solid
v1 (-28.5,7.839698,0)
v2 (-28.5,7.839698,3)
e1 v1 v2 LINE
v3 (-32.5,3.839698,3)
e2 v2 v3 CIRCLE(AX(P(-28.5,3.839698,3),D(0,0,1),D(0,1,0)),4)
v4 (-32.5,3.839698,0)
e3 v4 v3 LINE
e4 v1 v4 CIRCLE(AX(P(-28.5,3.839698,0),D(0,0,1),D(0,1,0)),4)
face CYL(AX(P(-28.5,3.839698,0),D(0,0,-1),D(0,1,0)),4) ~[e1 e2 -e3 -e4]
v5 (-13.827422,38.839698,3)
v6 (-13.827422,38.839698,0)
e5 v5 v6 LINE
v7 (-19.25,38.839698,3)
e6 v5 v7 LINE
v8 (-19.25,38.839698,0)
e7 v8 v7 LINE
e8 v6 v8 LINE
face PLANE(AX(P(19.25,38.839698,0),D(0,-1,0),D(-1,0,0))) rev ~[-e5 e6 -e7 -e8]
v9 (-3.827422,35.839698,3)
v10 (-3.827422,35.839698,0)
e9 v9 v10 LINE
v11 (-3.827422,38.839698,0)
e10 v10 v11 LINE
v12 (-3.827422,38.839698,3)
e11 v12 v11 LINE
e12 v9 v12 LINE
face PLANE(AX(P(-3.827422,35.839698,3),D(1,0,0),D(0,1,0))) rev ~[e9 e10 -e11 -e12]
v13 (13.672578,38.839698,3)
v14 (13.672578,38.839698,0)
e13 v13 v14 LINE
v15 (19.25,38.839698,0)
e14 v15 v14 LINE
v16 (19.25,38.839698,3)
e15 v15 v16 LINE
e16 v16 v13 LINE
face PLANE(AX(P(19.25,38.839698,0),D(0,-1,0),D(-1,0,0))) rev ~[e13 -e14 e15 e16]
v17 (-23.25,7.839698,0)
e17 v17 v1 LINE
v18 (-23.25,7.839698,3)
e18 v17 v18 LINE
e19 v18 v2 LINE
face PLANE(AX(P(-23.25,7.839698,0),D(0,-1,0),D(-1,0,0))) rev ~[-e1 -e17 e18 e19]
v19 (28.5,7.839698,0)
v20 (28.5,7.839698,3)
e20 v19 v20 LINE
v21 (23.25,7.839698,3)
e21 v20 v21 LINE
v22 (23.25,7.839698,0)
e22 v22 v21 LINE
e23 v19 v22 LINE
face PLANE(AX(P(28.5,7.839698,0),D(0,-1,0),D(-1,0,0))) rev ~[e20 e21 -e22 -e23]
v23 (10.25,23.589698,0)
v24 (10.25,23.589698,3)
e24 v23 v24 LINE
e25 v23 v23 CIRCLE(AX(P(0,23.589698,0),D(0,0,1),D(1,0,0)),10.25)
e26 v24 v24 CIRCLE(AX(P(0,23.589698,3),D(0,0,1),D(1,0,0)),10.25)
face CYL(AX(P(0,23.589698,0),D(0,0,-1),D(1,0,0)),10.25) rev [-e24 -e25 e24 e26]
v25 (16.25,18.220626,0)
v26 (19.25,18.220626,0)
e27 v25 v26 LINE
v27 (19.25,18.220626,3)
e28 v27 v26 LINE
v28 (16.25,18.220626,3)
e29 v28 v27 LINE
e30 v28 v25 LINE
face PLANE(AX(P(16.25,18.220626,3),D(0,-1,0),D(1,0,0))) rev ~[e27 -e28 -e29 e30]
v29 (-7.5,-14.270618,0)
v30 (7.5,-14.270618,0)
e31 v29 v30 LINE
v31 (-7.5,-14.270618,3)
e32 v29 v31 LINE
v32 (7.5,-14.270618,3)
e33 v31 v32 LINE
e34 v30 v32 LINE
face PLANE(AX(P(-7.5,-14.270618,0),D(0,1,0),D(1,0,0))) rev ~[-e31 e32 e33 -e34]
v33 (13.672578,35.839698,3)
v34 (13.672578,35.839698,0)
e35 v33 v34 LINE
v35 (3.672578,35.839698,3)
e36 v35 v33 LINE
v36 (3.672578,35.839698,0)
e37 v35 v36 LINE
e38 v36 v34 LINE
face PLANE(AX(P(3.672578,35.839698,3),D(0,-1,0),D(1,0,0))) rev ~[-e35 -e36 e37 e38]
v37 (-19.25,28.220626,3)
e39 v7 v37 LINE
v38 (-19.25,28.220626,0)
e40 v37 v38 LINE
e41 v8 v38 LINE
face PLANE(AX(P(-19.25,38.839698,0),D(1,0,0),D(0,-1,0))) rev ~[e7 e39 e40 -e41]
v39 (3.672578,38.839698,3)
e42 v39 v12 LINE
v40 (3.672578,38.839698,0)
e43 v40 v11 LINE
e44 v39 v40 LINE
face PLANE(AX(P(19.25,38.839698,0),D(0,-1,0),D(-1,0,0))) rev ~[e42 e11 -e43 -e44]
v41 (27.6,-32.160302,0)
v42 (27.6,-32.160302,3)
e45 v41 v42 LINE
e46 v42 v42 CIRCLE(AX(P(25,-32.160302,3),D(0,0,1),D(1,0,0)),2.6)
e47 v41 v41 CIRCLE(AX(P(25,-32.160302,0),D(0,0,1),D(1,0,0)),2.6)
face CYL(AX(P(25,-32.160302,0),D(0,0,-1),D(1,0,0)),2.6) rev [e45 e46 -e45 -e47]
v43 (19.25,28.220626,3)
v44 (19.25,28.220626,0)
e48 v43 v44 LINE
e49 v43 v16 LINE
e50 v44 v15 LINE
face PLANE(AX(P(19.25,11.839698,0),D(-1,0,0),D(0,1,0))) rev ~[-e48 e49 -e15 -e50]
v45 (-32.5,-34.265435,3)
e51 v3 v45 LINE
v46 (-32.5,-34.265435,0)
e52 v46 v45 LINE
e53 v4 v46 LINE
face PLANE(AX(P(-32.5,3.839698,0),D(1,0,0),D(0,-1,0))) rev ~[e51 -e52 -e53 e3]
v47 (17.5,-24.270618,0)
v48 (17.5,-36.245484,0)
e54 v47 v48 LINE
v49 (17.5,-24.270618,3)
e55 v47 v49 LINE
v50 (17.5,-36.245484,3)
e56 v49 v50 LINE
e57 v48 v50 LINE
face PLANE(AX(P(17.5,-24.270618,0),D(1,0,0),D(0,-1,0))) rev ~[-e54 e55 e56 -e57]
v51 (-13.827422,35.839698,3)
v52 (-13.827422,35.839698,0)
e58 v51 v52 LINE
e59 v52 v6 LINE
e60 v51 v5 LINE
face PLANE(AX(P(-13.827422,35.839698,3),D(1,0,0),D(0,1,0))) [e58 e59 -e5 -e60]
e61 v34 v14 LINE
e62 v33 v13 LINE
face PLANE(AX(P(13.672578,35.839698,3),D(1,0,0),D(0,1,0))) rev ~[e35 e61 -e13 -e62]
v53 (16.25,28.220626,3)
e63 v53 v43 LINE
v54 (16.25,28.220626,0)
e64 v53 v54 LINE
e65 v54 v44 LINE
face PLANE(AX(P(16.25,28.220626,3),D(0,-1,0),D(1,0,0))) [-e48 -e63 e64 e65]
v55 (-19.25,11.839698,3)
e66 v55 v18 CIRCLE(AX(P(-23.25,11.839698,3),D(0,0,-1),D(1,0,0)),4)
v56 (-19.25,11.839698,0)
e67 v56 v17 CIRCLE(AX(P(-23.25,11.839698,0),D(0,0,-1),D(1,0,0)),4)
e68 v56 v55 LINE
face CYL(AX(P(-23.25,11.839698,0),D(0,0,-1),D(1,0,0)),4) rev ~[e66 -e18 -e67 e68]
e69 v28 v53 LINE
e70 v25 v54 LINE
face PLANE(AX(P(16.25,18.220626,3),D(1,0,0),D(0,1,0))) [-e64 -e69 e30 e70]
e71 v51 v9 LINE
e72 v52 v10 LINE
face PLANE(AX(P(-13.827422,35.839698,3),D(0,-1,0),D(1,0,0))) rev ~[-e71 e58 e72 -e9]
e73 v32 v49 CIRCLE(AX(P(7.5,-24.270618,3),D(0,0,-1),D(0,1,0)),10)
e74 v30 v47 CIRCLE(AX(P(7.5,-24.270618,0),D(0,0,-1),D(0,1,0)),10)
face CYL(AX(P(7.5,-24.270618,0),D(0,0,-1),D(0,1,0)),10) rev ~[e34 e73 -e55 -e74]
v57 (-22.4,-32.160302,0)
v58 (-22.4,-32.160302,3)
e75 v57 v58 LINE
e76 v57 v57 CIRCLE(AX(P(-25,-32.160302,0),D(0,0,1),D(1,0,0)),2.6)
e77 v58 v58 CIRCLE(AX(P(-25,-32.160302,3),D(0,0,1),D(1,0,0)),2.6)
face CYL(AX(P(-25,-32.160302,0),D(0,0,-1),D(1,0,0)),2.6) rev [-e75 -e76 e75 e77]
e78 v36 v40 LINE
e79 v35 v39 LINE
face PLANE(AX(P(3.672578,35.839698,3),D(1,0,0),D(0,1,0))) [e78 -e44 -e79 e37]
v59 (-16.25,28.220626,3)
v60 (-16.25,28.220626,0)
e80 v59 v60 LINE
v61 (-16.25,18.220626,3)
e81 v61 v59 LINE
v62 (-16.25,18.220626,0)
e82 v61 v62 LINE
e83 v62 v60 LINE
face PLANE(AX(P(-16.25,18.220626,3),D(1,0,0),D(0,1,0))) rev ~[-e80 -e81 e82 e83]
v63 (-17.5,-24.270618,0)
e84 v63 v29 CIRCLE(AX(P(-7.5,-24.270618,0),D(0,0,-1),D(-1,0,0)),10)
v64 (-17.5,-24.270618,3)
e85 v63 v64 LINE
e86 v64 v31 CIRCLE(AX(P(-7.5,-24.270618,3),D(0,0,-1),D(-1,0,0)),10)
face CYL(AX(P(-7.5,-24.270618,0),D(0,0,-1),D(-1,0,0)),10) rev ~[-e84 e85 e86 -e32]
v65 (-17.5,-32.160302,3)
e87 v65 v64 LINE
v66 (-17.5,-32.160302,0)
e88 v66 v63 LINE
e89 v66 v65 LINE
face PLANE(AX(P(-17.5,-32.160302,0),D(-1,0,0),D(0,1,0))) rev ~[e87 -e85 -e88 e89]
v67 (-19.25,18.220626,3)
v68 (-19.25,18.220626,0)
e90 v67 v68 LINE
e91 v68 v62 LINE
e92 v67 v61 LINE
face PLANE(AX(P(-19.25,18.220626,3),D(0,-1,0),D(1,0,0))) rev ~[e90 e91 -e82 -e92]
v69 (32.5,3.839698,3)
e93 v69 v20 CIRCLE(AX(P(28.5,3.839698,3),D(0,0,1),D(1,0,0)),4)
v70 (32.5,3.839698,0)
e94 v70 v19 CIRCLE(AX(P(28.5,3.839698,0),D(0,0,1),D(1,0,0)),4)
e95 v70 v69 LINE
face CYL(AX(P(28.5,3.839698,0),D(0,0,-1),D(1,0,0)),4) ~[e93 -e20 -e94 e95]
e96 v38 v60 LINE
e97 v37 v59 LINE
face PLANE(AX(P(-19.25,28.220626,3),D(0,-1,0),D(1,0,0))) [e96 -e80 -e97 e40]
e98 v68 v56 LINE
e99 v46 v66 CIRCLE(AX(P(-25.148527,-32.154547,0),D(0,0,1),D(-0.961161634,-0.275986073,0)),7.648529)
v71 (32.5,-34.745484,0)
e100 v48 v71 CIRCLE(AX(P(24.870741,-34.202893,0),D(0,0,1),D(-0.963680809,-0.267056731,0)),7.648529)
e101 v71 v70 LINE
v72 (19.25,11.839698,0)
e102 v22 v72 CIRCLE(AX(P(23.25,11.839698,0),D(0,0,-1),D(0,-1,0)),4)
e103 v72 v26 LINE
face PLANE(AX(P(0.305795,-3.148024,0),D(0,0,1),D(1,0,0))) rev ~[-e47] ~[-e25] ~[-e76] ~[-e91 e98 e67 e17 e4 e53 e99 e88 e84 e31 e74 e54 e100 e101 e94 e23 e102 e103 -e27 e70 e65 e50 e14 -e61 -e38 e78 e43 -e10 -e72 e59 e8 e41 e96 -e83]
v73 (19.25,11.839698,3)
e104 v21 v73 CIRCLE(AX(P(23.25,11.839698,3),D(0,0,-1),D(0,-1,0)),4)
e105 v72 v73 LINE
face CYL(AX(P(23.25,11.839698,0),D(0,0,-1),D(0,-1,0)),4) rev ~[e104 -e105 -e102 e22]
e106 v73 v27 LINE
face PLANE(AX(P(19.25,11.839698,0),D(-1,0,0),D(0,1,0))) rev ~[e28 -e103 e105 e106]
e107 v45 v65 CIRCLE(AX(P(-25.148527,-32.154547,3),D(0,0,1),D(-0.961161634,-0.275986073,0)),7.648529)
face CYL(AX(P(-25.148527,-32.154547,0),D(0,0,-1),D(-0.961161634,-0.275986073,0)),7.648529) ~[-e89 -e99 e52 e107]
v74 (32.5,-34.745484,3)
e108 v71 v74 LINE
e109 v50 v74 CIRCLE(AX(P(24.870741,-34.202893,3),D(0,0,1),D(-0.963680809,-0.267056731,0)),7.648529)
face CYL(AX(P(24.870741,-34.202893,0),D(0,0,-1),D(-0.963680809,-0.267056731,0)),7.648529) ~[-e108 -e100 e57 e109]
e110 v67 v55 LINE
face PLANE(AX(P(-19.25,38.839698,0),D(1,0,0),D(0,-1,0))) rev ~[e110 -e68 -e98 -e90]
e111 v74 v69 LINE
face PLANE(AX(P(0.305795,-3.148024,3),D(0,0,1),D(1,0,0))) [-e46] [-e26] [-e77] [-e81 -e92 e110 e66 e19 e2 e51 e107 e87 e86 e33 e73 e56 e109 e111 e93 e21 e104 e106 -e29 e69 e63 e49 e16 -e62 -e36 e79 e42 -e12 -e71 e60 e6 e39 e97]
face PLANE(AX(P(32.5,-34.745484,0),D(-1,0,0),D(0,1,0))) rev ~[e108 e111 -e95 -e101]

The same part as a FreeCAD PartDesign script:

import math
import FreeCAD as App
import Part
import Sketcher

V = App.Vector

doc = App.newDocument("Part")
body = doc.addObject("PartDesign::Body", "Body")

sketch1 = body.newObject("Sketcher::SketchObject", "Sketch")
sketch1.AttachmentSupport = (doc.getObject("XY_Plane"), [""])
sketch1.MapMode = "FlatFace"
sketch1.addGeometry([
    Part.ArcOfCircle(Part.Circle(V(-25.1, -32.2, 0), V(0, 0, 1), 7.6), math.radians(-164), math.radians(0)),
    Part.LineSegment(V(-17.5, -32.2, 0), V(-17.5, -24.3, 0)),
    Part.ArcOfCircle(Part.Circle(V(-7.5, -24.3, 0), V(0, 0, 1), 10), math.radians(90), math.radians(180)),
    Part.LineSegment(V(-7.5, -14.3, 0), V(7.5, -14.3, 0)),
    Part.ArcOfCircle(Part.Circle(V(7.5, -24.3, 0), V(0, 0, 1), 10), math.radians(0), math.radians(90)),
    Part.LineSegment(V(17.5, -24.3, 0), V(17.5, -36.2, 0)),
    Part.ArcOfCircle(Part.Circle(V(24.9, -34.2, 0), V(0, 0, 1), 7.6), math.radians(-165), math.radians(-4)),
    Part.LineSegment(V(32.5, -34.7, 0), V(32.5, 3.8, 0)),
    Part.ArcOfCircle(Part.Circle(V(28.5, 3.8, 0), V(0, 0, 1), 4), math.radians(0), math.radians(90)),
    Part.LineSegment(V(28.5, 7.8, 0), V(23.2, 7.8, 0)),
    Part.ArcOfCircle(Part.Circle(V(23.2, 11.8, 0), V(0, 0, 1), 4), math.radians(180), math.radians(270)),
    Part.LineSegment(V(19.2, 11.8, 0), V(19.2, 38.8, 0)),
    Part.LineSegment(V(19.2, 38.8, 0), V(-19.2, 38.8, 0)),
    Part.LineSegment(V(-19.2, 38.8, 0), V(-19.2, 11.8, 0)),
    Part.ArcOfCircle(Part.Circle(V(-23.2, 11.8, 0), V(0, 0, 1), 4), math.radians(-90), math.radians(0)),
    Part.LineSegment(V(-23.2, 7.8, 0), V(-28.5, 7.8, 0)),
    Part.ArcOfCircle(Part.Circle(V(-28.5, 3.8, 0), V(0, 0, 1), 4), math.radians(90), math.radians(180)),
    Part.LineSegment(V(-32.5, 3.8, 0), V(-32.5, -34.3, 0)),
    Part.Circle(V(-25, -32.2, 0), V(0, 0, 1), 2.6),
    Part.Circle(V(25, -32.2, 0), V(0, 0, 1), 2.6),
    Part.Circle(V(0, 23.6, 0), V(0, 0, 1), 10.2),
], False)
sketch1.addConstraint([
    Sketcher.Constraint("Coincident", 0, 2, 1, 1),
    Sketcher.Constraint("Tangent", 1, 2, 2, 2),
    Sketcher.Constraint("Tangent", 2, 1, 3, 1),
    Sketcher.Constraint("Tangent", 3, 2, 4, 2),
    Sketcher.Constraint("Tangent", 4, 1, 5, 1),
    Sketcher.Constraint("Coincident", 5, 2, 6, 1),
    Sketcher.Constraint("Coincident", 6, 2, 7, 1),
    Sketcher.Constraint("Tangent", 7, 2, 8, 1),
    Sketcher.Constraint("Tangent", 8, 2, 9, 1),
    Sketcher.Constraint("Tangent", 9, 2, 10, 2),
    Sketcher.Constraint("Tangent", 10, 1, 11, 1),
    Sketcher.Constraint("Coincident", 11, 2, 12, 1),
    Sketcher.Constraint("Coincident", 12, 2, 13, 1),
    Sketcher.Constraint("Tangent", 13, 2, 14, 2),
    Sketcher.Constraint("Tangent", 14, 1, 15, 1),
    Sketcher.Constraint("Tangent", 15, 2, 16, 1),
    Sketcher.Constraint("Tangent", 16, 2, 17, 1),
    Sketcher.Constraint("Coincident", 17, 2, 0, 1),
    Sketcher.Constraint("Vertical", 1),
    Sketcher.Constraint("Horizontal", 3),
    Sketcher.Constraint("Vertical", 5),
    Sketcher.Constraint("Vertical", 7),
    Sketcher.Constraint("Horizontal", 9),
    Sketcher.Constraint("Vertical", 11),
    Sketcher.Constraint("Horizontal", 12),
    Sketcher.Constraint("Vertical", 13),
    Sketcher.Constraint("Horizontal", 15),
    Sketcher.Constraint("Vertical", 17),
    Sketcher.Constraint("Equal", 2, 4),
    Sketcher.Constraint("Equal", 0, 6),
    Sketcher.Constraint("Equal", 8, 10),
    Sketcher.Constraint("Equal", 10, 14),
    Sketcher.Constraint("Equal", 14, 16),
    Sketcher.Constraint("Equal", 18, 19),
    Sketcher.Constraint("Symmetric", 10, 3, 14, 3, -2),
    Sketcher.Constraint("Symmetric", 18, 3, 19, 3, -2),
    Sketcher.Constraint("PointOnObject", 20, 3, -2),
    Sketcher.Constraint("Horizontal", 19, 3, 0, 2),
    Sketcher.Constraint("Equal", 9, 15),
    Sketcher.Constraint("Radius", 2, 10.0),
    Sketcher.Constraint("Radius", 8, 4.0),
    Sketcher.Constraint("Diameter", 18, 5.2),
    Sketcher.Constraint("Diameter", 20, 20.5),
    Sketcher.Constraint("DistanceX", 3, 1, 3, 2, 15.0),
    Sketcher.Constraint("DistanceY", 11, 1, 11, 2, 27.0),
    Sketcher.Constraint("DistanceX", 12, 2, 12, 1, 38.5),
    Sketcher.Constraint("DistanceX", 18, 3, -1, 1, 25.0),
    Sketcher.Constraint("DistanceX", 4, 3, 8, 3, 21.0),
    Sketcher.Constraint("DistanceX", 16, 3, 2, 3, 21.0),
    Sketcher.Constraint("DistanceY", 18, 3, 16, 3, 36.0),
    Sketcher.Constraint("DistanceY", 5, 2, 6, 2, 1.5),
    Sketcher.Constraint("Radius", 0, 7.648529),
    Sketcher.Constraint("DistanceY", 10, 3, 20, 3, 11.75),
    Sketcher.Constraint("DistanceY", -1, 1, 8, 3, 3.839698),
    Sketcher.Constraint("DistanceY", 1, 1, 1, 2, 7.889684),
    Sketcher.Constraint("DistanceY", 5, 2, 5, 1, 11.974867),
    Sketcher.Constraint("DistanceY", 17, 2, 17, 1, 38.105133),
])
pad1 = body.newObject("PartDesign::Pad", "Pad")
pad1.Profile = sketch1
pad1.Length = 3

sketch2 = body.newObject("Sketcher::SketchObject", "Sketch001")
sketch2.AttachmentSupport = (doc.getObject("XY_Plane"), [""])
sketch2.MapMode = "FlatFace"
sketch2.AttachmentOffset = App.Placement(V(0, 0, 3), App.Rotation())
sketch2.addGeometry([
    Part.LineSegment(V(-19.2, 28.2, 0), V(-19.2, 18.2, 0)),
    Part.LineSegment(V(-19.2, 18.2, 0), V(-16.2, 18.2, 0)),
    Part.LineSegment(V(-16.2, 18.2, 0), V(-16.2, 28.2, 0)),
    Part.LineSegment(V(-16.2, 28.2, 0), V(-19.2, 28.2, 0)),
    Part.LineSegment(V(-13.8, 38.8, 0), V(-13.8, 35.8, 0)),
    Part.LineSegment(V(-13.8, 35.8, 0), V(-3.8, 35.8, 0)),
    Part.LineSegment(V(-3.8, 35.8, 0), V(-3.8, 38.8, 0)),
    Part.LineSegment(V(-3.8, 38.8, 0), V(-13.8, 38.8, 0)),
    Part.LineSegment(V(3.7, 38.8, 0), V(3.7, 35.8, 0)),
    Part.LineSegment(V(3.7, 35.8, 0), V(13.7, 35.8, 0)),
    Part.LineSegment(V(13.7, 35.8, 0), V(13.7, 38.8, 0)),
    Part.LineSegment(V(13.7, 38.8, 0), V(3.7, 38.8, 0)),
    Part.LineSegment(V(16.2, 28.2, 0), V(16.2, 18.2, 0)),
    Part.LineSegment(V(16.2, 18.2, 0), V(19.2, 18.2, 0)),
    Part.LineSegment(V(19.2, 18.2, 0), V(19.2, 28.2, 0)),
    Part.LineSegment(V(19.2, 28.2, 0), V(16.2, 28.2, 0)),
], False)
sketch2.addConstraint([
    Sketcher.Constraint("Coincident", 0, 2, 1, 1),
    Sketcher.Constraint("Coincident", 1, 2, 2, 1),
    Sketcher.Constraint("Coincident", 2, 2, 3, 1),
    Sketcher.Constraint("Coincident", 3, 2, 0, 1),
    Sketcher.Constraint("Coincident", 4, 2, 5, 1),
    Sketcher.Constraint("Coincident", 5, 2, 6, 1),
    Sketcher.Constraint("Coincident", 6, 2, 7, 1),
    Sketcher.Constraint("Coincident", 7, 2, 4, 1),
    Sketcher.Constraint("Coincident", 8, 2, 9, 1),
    Sketcher.Constraint("Coincident", 9, 2, 10, 1),
    Sketcher.Constraint("Coincident", 10, 2, 11, 1),
    Sketcher.Constraint("Coincident", 11, 2, 8, 1),
    Sketcher.Constraint("Coincident", 12, 2, 13, 1),
    Sketcher.Constraint("Coincident", 13, 2, 14, 1),
    Sketcher.Constraint("Coincident", 14, 2, 15, 1),
    Sketcher.Constraint("Coincident", 15, 2, 12, 1),
    Sketcher.Constraint("Vertical", 0),
    Sketcher.Constraint("Horizontal", 1),
    Sketcher.Constraint("Vertical", 2),
    Sketcher.Constraint("Horizontal", 3),
    Sketcher.Constraint("Vertical", 4),
    Sketcher.Constraint("Horizontal", 5),
    Sketcher.Constraint("Vertical", 6),
    Sketcher.Constraint("Horizontal", 7),
    Sketcher.Constraint("Vertical", 8),
    Sketcher.Constraint("Horizontal", 9),
    Sketcher.Constraint("Vertical", 10),
    Sketcher.Constraint("Horizontal", 11),
    Sketcher.Constraint("Vertical", 12),
    Sketcher.Constraint("Horizontal", 13),
    Sketcher.Constraint("Vertical", 14),
    Sketcher.Constraint("Horizontal", 15),
    Sketcher.Constraint("Symmetric", 1, 2, 12, 2, -2),
    Sketcher.Constraint("Symmetric", 3, 2, 14, 2, -2),
    Sketcher.Constraint("Horizontal", 5, 2, 8, 2),
    Sketcher.Constraint("Horizontal", 7, 2, 10, 2),
    Sketcher.Constraint("Equal", 7, 9),
    Sketcher.Constraint("Equal", 11, 0),
    Sketcher.Constraint("Equal", 15, 4),
    Sketcher.Constraint("DistanceX", 1, 1, 1, 2, 3.0),
    Sketcher.Constraint("DistanceX", 5, 1, 5, 2, 10.0),
    Sketcher.Constraint("DistanceX", 5, 2, 8, 2, 7.5),
    Sketcher.Constraint("DistanceX", 0, 2, -1, 1, 19.25),
    Sketcher.Constraint("DistanceY", -1, 1, 4, 2, 35.839698),
    Sketcher.Constraint("DistanceX", 4, 2, -1, 1, 13.827422),
    Sketcher.Constraint("DistanceY", -1, 1, 0, 2, 18.220626),
])
pocket1 = body.newObject("PartDesign::Pocket", "Pocket")
pocket1.Profile = sketch2
pocket1.Length = 3

doc.recompute()
